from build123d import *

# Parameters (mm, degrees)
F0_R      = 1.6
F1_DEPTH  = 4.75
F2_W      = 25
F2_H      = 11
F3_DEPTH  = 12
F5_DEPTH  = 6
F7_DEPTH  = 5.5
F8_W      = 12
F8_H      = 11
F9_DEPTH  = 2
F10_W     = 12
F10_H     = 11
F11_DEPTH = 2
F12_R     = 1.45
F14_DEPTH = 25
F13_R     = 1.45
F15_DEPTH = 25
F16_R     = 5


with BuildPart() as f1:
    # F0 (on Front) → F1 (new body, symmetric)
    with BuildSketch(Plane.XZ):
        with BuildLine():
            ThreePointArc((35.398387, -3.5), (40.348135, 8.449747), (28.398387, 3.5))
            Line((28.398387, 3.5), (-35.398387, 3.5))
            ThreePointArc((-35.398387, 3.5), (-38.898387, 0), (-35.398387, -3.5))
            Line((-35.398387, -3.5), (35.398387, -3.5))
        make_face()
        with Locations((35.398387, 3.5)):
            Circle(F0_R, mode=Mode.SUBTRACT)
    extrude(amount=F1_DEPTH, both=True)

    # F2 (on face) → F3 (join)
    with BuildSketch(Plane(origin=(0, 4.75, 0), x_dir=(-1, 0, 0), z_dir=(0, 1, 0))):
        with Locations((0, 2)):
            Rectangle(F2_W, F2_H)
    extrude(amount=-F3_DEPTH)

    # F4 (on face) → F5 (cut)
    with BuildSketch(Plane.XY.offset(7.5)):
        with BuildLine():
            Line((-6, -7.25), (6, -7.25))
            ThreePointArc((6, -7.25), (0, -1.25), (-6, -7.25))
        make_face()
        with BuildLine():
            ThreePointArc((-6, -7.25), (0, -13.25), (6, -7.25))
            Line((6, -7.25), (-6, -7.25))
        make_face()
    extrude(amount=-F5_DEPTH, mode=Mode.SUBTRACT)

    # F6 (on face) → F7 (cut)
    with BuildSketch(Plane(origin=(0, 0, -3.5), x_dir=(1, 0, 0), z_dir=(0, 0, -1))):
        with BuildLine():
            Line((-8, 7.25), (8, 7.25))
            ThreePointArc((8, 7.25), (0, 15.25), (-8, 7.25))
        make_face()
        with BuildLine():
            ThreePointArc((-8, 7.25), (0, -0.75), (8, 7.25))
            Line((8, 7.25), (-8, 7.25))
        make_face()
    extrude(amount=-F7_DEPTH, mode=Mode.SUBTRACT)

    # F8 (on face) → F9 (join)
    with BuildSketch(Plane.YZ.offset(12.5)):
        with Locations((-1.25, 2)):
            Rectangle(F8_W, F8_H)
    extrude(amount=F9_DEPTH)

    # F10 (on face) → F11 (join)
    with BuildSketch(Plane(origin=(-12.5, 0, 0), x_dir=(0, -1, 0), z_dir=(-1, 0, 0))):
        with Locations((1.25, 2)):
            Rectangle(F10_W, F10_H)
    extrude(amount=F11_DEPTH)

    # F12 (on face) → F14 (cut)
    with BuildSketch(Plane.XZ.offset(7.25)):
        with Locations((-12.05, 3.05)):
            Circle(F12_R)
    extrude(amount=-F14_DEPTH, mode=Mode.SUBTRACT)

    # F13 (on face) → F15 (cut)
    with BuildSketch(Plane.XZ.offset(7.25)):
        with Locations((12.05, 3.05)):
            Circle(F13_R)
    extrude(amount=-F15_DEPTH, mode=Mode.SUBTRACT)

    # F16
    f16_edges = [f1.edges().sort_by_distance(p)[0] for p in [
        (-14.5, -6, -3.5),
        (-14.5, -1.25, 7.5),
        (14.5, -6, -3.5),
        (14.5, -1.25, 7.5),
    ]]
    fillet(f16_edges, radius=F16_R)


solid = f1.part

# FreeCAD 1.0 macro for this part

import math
import FreeCAD as App
import Part
import Sketcher
from FreeCAD import Vector


def edges_at(feature, points):
    """Names of the edges that pass closest to the given points."""
    edges = feature.Shape.Edges
    near = lambda p: min(range(len(edges)), key=lambda i: edges[i].distToShape(Part.Vertex(*p))[0])
    return sorted({f"Edge{near(p) + 1}" for p in points})

doc = App.newDocument("Part")
body = doc.addObject("PartDesign::Body", "Body")

# Sketch on XZ plane
sketch1 = body.newObject("Sketcher::SketchObject", "Sketch")
sketch1.AttachmentSupport = (doc.getObject("XZ_Plane"), [""])
sketch1.MapMode = "FlatFace"
sketch1.addGeometry(Part.ArcOfCircle(Part.Circle(Vector(35.398387, 3.5, 0), Vector(0, 0, 1), 7), math.radians(-90), math.radians(180)), False)
sketch1.addGeometry(Part.LineSegment(Vector(28.398387, 3.5, 0), Vector(-35.398387, 3.5, 0)), False)
sketch1.addGeometry(Part.ArcOfCircle(Part.Circle(Vector(-35.398387, 0, 0), Vector(0, 0, 1), 3.5), math.radians(90), math.radians(270)), False)
sketch1.addGeometry(Part.LineSegment(Vector(-35.398387, -3.5, 0), Vector(35.398387, -3.5, 0)), False)
sketch1.addGeometry(Part.Circle(Vector(35.398387, 3.5, 0), Vector(0, 0, 1), 1.6), False)
sketch1.addConstraint(Sketcher.Constraint("Coincident", 0, 2, 1, 1))
sketch1.addConstraint(Sketcher.Constraint("Tangent", 1, 2, 2, 1))
sketch1.addConstraint(Sketcher.Constraint("Tangent", 2, 2, 3, 1))
sketch1.addConstraint(Sketcher.Constraint("Tangent", 3, 2, 0, 1))
sketch1.addConstraint(Sketcher.Constraint("Horizontal", 1))
sketch1.addConstraint(Sketcher.Constraint("Horizontal", 3))
sketch1.addConstraint(Sketcher.Constraint("Coincident", 4, 3, 0, 3))
sketch1.addConstraint(Sketcher.Constraint("Symmetric", 1, 2, 3, 2, -1, 1))
sketch1.addConstraint(Sketcher.Constraint("Horizontal", 4, 3, 0, 2))
sketch1.addConstraint(Sketcher.Constraint("Radius", 0, 7.0))
sketch1.addConstraint(Sketcher.Constraint("Diameter", 4, 3.2))
sketch1.addConstraint(Sketcher.Constraint("DistanceX", 1, 2, 1, 1, 63.796774))
pad1 = body.newObject("PartDesign::Pad", "Pad")
pad1.Profile = sketch1
pad1.Length = 9.5
pad1.Midplane = True

# Sketch on XZ plane
sketch2 = body.newObject("Sketcher::SketchObject", "Sketch001")
sketch2.AttachmentSupport = (doc.getObject("XZ_Plane"), [""])
sketch2.MapMode = "FlatFace"
sketch2.AttachmentOffset = App.Placement(Vector(0, 0, -4.75), App.Rotation())
sketch2.addGeometry(Part.LineSegment(Vector(12.5, 7.5, 0), Vector(12.5, -3.5, 0)), False)
sketch2.addGeometry(Part.LineSegment(Vector(12.5, -3.5, 0), Vector(-12.5, -3.5, 0)), False)
sketch2.addGeometry(Part.LineSegment(Vector(-12.5, -3.5, 0), Vector(-12.5, 7.5, 0)), False)
sketch2.addGeometry(Part.LineSegment(Vector(-12.5, 7.5, 0), Vector(12.5, 7.5, 0)), False)
sketch2.addConstraint(Sketcher.Constraint("Coincident", 0, 2, 1, 1))
sketch2.addConstraint(Sketcher.Constraint("Coincident", 1, 2, 2, 1))
sketch2.addConstraint(Sketcher.Constraint("Coincident", 2, 2, 3, 1))
sketch2.addConstraint(Sketcher.Constraint("Coincident", 3, 2, 0, 1))
sketch2.addConstraint(Sketcher.Constraint("Vertical", 0))
sketch2.addConstraint(Sketcher.Constraint("Horizontal", 1))
sketch2.addConstraint(Sketcher.Constraint("Vertical", 2))
sketch2.addConstraint(Sketcher.Constraint("Horizontal", 3))
sketch2.addConstraint(Sketcher.Constraint("DistanceX", 1, 2, 1, 1, 25.0))
sketch2.addConstraint(Sketcher.Constraint("DistanceY", 0, 2, 0, 1, 11.0))
sketch2.addConstraint(Sketcher.Constraint("DistanceX", -1, 1, 0, 2, 12.5))
sketch2.addConstraint(Sketcher.Constraint("DistanceY", 0, 2, -1, 1, 3.5))
pad2 = body.newObject("PartDesign::Pad", "Pad001")
pad2.Profile = sketch2
pad2.Length = 12

# Sketch on XY plane
sketch3 = body.newObject("Sketcher::SketchObject", "Sketch002")
sketch3.AttachmentSupport = (doc.getObject("XY_Plane"), [""])
sketch3.MapMode = "FlatFace"
sketch3.AttachmentOffset = App.Placement(Vector(0, 0, 7.5), App.Rotation())
sketch3.addGeometry(Part.Circle(Vector(0, -7.25, 0), Vector(0, 0, 1), 6), False)
sketch3.addConstraint(Sketcher.Constraint("PointOnObject", 0, 3, -2))
sketch3.addConstraint(Sketcher.Constraint("Diameter", 0, 12.0))
sketch3.addConstraint(Sketcher.Constraint("DistanceY", 0, 3, -1, 1, 7.25))
pocket1 = body.newObject("PartDesign::Pocket", "Pocket")
pocket1.Profile = sketch3
pocket1.Length = 6

# Sketch on XY plane
sketch4 = body.newObject("Sketcher::SketchObject", "Sketch003")
sketch4.AttachmentSupport = (doc.getObject("XY_Plane"), [""])
sketch4.MapMode = "FlatFace"
sketch4.AttachmentOffset = App.Placement(Vector(0, 0, -3.5), App.Rotation())
sketch4.addGeometry(Part.Circle(Vector(0, -7.25, 0), Vector(0, 0, 1), 8), False)
sketch4.addConstraint(Sketcher.Constraint("PointOnObject", 0, 3, -2))
sketch4.addConstraint(Sketcher.Constraint("Diameter", 0, 16.0))
sketch4.addConstraint(Sketcher.Constraint("DistanceY", 0, 3, -1, 1, 7.25))
pocket2 = body.newObject("PartDesign::Pocket", "Pocket001")
pocket2.Profile = sketch4
pocket2.Length = 5.5
pocket2.Reversed = True

# Sketch on YZ plane
sketch5 = body.newObject("Sketcher::SketchObject", "Sketch004")
sketch5.AttachmentSupport = (doc.getObject("YZ_Plane"), [""])
sketch5.MapMode = "FlatFace"
sketch5.AttachmentOffset = App.Placement(Vector(0, 0, 12.5), App.Rotation())
sketch5.addGeometry(Part.LineSegment(Vector(-7.25, 7.5, 0), Vector(-7.25, -3.5, 0)), False)
sketch5.addGeometry(Part.LineSegment(Vector(-7.25, -3.5, 0), Vector(4.75, -3.5, 0)), False)
sketch5.addGeometry(Part.LineSegment(Vector(4.75, -3.5, 0), Vector(4.75, 7.5, 0)), False)
sketch5.addGeometry(Part.LineSegment(Vector(4.75, 7.5, 0), Vector(-7.25, 7.5, 0)), False)
sketch5.addConstraint(Sketcher.Constraint("Coincident", 0, 2, 1, 1))
sketch5.addConstraint(Sketcher.Constraint("Coincident", 1, 2, 2, 1))
sketch5.addConstraint(Sketcher.Constraint("Coincident", 2, 2, 3, 1))
sketch5.addConstraint(Sketcher.Constraint("Coincident", 3, 2, 0, 1))
sketch5.addConstraint(Sketcher.Constraint("Vertical", 0))
sketch5.addConstraint(Sketcher.Constraint("Horizontal", 1))
sketch5.addConstraint(Sketcher.Constraint("Vertical", 2))
sketch5.addConstraint(Sketcher.Constraint("Horizontal", 3))
sketch5.addConstraint(Sketcher.Constraint("DistanceX", 1, 1, 1, 2, 12.0))
sketch5.addConstraint(Sketcher.Constraint("DistanceY", 0, 2, 0, 1, 11.0))
sketch5.addConstraint(Sketcher.Constraint("DistanceY", 0, 2, -1, 1, 3.5))
sketch5.addConstraint(Sketcher.Constraint("DistanceX", 0, 2, -1, 1, 7.25))
pad3 = body.newObject("PartDesign::Pad", "Pad002")
pad3.Profile = sketch5
pad3.Length = 2

# Sketch on YZ plane
sketch6 = body.newObject("Sketcher::SketchObject", "Sketch005")
sketch6.AttachmentSupport = (doc.getObject("YZ_Plane"), [""])
sketch6.MapMode = "FlatFace"
sketch6.AttachmentOffset = App.Placement(Vector(0, 0, -12.5), App.Rotation())
sketch6.addGeometry(Part.LineSegment(Vector(4.75, 7.5, 0), Vector(4.75, -3.5, 0)), False)
sketch6.addGeometry(Part.LineSegment(Vector(4.75, -3.5, 0), Vector(-7.25, -3.5, 0)), False)
sketch6.addGeometry(Part.LineSegment(Vector(-7.25, -3.5, 0), Vector(-7.25, 7.5, 0)), False)
sketch6.addGeometry(Part.LineSegment(Vector(-7.25, 7.5, 0), Vector(4.75, 7.5, 0)), False)
sketch6.addConstraint(Sketcher.Constraint("Coincident", 0, 2, 1, 1))
sketch6.addConstraint(Sketcher.Constraint("Coincident", 1, 2, 2, 1))
sketch6.addConstraint(Sketcher.Constraint("Coincident", 2, 2, 3, 1))
sketch6.addConstraint(Sketcher.Constraint("Coincident", 3, 2, 0, 1))
sketch6.addConstraint(Sketcher.Constraint("Vertical", 0))
sketch6.addConstraint(Sketcher.Constraint("Horizontal", 1))
sketch6.addConstraint(Sketcher.Constraint("Vertical", 2))
sketch6.addConstraint(Sketcher.Constraint("Horizontal", 3))
sketch6.addConstraint(Sketcher.Constraint("DistanceX", 1, 2, 1, 1, 12.0))
sketch6.addConstraint(Sketcher.Constraint("DistanceY", 0, 2, 0, 1, 11.0))
sketch6.addConstraint(Sketcher.Constraint("DistanceY", 0, 2, -1, 1, 3.5))
sketch6.addConstraint(Sketcher.Constraint("DistanceX", -1, 1, 0, 2, 4.75))
pad4 = body.newObject("PartDesign::Pad", "Pad003")
pad4.Profile = sketch6
pad4.Length = 2
pad4.Reversed = True

# Sketch on XZ plane
sketch7 = body.newObject("Sketcher::SketchObject", "Sketch006")
sketch7.AttachmentSupport = (doc.getObject("XZ_Plane"), [""])
sketch7.MapMode = "FlatFace"
sketch7.AttachmentOffset = App.Placement(Vector(0, 0, 7.25), App.Rotation())
sketch7.addGeometry(Part.Circle(Vector(-12.05, 3.05, 0), Vector(0, 0, 1), 1.45), False)
sketch7.addConstraint(Sketcher.Constraint("Diameter", 0, 2.9))
sketch7.addConstraint(Sketcher.Constraint("DistanceX", 0, 3, -1, 1, 12.05))
sketch7.addConstraint(Sketcher.Constraint("DistanceY", -1, 1, 0, 3, 3.05))
pocket3 = body.newObject("PartDesign::Pocket", "Pocket002")
pocket3.Profile = sketch7
pocket3.Length = 25

# Sketch on XZ plane
sketch8 = body.newObject("Sketcher::SketchObject", "Sketch007")
sketch8.AttachmentSupport = (doc.getObject("XZ_Plane"), [""])
sketch8.MapMode = "FlatFace"
sketch8.AttachmentOffset = App.Placement(Vector(0, 0, 7.25), App.Rotation())
sketch8.addGeometry(Part.Circle(Vector(12.05, 3.05, 0), Vector(0, 0, 1), 1.45), False)
sketch8.addConstraint(Sketcher.Constraint("Diameter", 0, 2.9))
sketch8.addConstraint(Sketcher.Constraint("DistanceX", -1, 1, 0, 3, 12.05))
sketch8.addConstraint(Sketcher.Constraint("DistanceY", -1, 1, 0, 3, 3.05))
pocket4 = body.newObject("PartDesign::Pocket", "Pocket003")
pocket4.Profile = sketch8
pocket4.Length = 25
doc.recompute()

fillet = body.newObject("PartDesign::Fillet", "Fillet")
fillet.Base = (pocket4, edges_at(pocket4, [
    (-14.5, -6, -3.5),
    (-14.5, -1.25, 7.5),
    (14.5, -6, -3.5),
    (14.5, -1.25, 7.5),
]))
fillet.Radius = 5

doc.recompute()
